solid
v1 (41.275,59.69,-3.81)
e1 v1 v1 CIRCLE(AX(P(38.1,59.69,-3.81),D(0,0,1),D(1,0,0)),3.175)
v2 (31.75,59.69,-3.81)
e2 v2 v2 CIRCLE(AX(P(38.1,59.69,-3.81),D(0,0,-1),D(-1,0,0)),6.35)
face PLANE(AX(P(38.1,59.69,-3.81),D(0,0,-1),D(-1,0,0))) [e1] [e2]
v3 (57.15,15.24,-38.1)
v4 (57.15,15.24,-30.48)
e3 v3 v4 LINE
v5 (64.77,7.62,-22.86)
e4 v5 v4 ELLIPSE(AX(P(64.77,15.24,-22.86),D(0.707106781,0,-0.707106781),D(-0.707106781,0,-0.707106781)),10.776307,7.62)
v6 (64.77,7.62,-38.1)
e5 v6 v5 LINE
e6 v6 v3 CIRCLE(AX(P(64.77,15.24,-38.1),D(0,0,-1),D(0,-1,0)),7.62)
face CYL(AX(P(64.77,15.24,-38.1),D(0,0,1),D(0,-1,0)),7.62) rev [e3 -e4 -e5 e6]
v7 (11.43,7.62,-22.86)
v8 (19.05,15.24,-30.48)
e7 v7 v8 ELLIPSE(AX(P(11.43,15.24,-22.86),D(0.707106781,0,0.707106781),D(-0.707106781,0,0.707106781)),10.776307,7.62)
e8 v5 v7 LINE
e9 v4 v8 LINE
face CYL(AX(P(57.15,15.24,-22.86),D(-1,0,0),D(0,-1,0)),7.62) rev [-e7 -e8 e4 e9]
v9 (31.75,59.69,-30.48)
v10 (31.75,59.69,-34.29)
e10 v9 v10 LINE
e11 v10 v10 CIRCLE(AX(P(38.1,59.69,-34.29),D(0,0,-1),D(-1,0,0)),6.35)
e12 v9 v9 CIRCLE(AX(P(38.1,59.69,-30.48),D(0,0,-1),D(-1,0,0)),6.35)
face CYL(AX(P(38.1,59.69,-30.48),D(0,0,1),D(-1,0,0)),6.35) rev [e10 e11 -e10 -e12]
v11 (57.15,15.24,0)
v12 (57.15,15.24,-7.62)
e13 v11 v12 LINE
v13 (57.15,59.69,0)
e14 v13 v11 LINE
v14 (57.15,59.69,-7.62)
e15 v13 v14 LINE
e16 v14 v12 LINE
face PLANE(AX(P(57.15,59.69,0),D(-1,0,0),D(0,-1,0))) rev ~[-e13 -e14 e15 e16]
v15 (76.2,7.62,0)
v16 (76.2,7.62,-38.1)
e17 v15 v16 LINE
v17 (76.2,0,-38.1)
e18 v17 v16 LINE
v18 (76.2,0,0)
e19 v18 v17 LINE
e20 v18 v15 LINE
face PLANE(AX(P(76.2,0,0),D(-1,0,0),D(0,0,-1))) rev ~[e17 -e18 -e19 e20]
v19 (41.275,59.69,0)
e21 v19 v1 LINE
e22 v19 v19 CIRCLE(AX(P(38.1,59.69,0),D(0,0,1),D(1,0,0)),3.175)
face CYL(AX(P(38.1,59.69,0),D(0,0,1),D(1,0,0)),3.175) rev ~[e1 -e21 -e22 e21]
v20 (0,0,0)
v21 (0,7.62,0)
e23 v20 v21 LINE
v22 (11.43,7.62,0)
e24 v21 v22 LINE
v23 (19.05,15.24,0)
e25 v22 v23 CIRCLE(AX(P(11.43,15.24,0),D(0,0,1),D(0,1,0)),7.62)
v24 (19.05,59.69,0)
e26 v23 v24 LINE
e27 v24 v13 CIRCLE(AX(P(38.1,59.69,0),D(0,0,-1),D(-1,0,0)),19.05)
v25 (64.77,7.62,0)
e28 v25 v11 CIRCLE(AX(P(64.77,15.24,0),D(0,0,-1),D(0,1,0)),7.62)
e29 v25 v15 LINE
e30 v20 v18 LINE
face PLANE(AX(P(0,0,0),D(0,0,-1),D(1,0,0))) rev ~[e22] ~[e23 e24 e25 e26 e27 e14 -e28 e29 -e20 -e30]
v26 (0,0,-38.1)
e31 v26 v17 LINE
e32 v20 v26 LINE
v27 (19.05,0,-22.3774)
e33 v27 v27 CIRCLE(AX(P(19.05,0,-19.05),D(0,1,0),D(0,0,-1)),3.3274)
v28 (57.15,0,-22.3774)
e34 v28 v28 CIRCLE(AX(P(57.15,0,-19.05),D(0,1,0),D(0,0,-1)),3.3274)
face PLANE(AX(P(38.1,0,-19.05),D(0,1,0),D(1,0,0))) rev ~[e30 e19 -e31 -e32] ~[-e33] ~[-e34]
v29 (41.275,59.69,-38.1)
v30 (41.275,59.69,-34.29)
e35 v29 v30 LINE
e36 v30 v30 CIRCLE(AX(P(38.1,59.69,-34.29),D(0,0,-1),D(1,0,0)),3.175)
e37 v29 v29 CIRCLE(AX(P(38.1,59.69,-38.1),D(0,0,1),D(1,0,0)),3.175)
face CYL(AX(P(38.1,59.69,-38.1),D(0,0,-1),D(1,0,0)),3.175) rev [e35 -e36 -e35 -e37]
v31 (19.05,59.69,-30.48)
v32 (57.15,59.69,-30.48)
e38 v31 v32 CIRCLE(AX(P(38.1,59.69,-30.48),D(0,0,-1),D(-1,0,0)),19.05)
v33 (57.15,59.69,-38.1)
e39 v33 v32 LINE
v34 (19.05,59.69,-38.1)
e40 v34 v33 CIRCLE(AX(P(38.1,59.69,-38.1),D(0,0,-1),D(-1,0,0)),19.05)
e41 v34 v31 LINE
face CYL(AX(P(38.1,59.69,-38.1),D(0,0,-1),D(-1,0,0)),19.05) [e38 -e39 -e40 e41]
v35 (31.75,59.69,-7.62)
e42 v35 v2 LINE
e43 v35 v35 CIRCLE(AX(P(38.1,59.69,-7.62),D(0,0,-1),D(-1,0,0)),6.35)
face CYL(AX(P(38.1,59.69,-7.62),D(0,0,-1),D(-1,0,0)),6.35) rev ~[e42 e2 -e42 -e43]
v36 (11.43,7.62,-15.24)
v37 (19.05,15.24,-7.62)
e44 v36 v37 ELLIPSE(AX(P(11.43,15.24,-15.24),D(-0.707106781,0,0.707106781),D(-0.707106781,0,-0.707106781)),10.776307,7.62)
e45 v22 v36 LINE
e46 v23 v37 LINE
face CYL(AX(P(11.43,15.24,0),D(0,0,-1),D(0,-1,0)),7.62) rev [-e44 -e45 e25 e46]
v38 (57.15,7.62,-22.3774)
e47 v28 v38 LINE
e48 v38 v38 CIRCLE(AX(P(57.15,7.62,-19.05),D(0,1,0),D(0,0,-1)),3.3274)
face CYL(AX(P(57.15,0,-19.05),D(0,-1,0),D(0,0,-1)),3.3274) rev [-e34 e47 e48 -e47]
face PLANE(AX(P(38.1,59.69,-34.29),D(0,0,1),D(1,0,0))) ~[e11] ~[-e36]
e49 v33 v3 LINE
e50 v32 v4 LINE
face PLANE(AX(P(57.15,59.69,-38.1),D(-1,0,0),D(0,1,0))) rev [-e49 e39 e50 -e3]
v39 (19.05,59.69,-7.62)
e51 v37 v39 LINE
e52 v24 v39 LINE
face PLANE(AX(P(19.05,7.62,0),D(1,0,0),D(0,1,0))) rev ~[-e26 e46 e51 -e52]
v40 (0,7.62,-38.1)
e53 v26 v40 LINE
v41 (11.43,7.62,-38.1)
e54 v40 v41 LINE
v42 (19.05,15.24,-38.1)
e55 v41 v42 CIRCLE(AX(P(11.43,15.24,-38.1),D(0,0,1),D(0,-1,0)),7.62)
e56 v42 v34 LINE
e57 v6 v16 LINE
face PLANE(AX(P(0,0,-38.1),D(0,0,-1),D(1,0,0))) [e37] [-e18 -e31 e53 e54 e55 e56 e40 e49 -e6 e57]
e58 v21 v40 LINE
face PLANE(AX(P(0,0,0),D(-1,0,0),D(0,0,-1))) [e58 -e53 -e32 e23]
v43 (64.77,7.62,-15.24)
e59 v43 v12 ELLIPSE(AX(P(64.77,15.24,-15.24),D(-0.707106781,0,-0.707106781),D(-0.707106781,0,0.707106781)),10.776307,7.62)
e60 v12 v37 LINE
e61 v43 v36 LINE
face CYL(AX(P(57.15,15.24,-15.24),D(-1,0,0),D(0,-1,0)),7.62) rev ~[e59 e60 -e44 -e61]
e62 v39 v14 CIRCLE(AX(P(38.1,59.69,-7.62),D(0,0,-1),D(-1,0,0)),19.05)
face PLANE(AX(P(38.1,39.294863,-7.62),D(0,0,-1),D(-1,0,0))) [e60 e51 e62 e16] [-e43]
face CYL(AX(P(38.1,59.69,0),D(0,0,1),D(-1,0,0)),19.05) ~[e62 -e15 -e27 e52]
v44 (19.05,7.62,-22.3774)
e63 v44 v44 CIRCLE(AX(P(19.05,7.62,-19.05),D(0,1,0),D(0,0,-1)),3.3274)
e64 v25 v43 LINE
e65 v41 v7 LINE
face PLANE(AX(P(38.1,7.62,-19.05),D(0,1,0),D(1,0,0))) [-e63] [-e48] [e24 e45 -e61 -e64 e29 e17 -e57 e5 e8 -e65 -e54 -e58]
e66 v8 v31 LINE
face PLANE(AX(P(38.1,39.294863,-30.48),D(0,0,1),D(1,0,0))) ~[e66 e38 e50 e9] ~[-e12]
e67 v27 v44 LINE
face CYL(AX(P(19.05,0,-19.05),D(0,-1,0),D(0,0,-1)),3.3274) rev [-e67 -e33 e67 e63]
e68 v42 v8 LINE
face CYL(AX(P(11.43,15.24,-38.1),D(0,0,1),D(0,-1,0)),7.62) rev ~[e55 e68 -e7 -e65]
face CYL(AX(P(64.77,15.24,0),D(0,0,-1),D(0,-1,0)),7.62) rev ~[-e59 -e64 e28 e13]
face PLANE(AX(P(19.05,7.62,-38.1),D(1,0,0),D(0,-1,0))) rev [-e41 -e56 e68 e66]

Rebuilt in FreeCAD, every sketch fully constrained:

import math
import FreeCAD as App
import Part
import Sketcher

V = App.Vector
Q = App.Units.Quantity


def edges_at(feature, points):
    """Names of the edges that pass closest to the given points."""
    edges = feature.Shape.Edges
    near = lambda p: min(range(len(edges)), key=lambda i: edges[i].distToShape(Part.Vertex(*p))[0])
    return sorted({f"Edge{near(p) + 1}" for p in points})


def add_polygon(sketch, points):
    """Adds a closed chain of lines whose ends are joined by coincident constraints."""
    first, n = sketch.GeometryCount, len(points)
    for a, b in zip(points, points[1:] + points[:1]):
        sketch.addGeometry(Part.LineSegment(App.Vector(*a, 0), App.Vector(*b, 0)), False)
    for i in range(n):
        sketch.addConstraint(Sketcher.Constraint("Coincident", first + i, 2, first + (i + 1) % n, 1))

doc = App.newDocument("Part")
body = doc.addObject("PartDesign::Body", "Body")

# Sketch on XZ plane
sketch1 = body.newObject("Sketcher::SketchObject", "Sketch")
sketch1.AttachmentSupport = (doc.getObject("XZ_Plane"), [""])
sketch1.MapMode = "FlatFace"
add_polygon(sketch1, [(0, -38.1), (0, 0), (76.2, 0), (76.2, -38.1)])  # lines 0-3
sketch1.addGeometry(Part.Circle(V(19.1, -19.1, 0), V(0, 0, 1), 3.3), False)  # 4
sketch1.addGeometry(Part.Circle(V(57.1, -19.1, 0), V(0, 0, 1), 3.3), False)  # 5
sketch1.addConstraint([
    Sketcher.Constraint("Vertical", 0),
    Sketcher.Constraint("Horizontal", 1),
    Sketcher.Constraint("Vertical", 2),
    Sketcher.Constraint("Horizontal", 3),
    Sketcher.Constraint("Coincident", 0, 2, -1, 1),
    Sketcher.Constraint("Equal", 4, 5),
    Sketcher.Constraint("Horizontal", 4, 3, 5, 3),
    Sketcher.Constraint("DistanceX", 1, 1, 1, 2, Q("3 in")),
    Sketcher.Constraint("Diameter", 4, Q("0.262 in")),
    Sketcher.Constraint("DistanceY", 0, 1, 0, 2, Q("1.5 in")),
    Sketcher.Constraint("DistanceX", 4, 3, 5, 3, Q("1.5 in")),
    Sketcher.Constraint("DistanceX", -1, 1, 4, 3, Q("0.75 in")),
    Sketcher.Constraint("DistanceY", 4, 3, -1, 1, Q("0.75 in")),
])
pad1 = body.newObject("PartDesign::Pad", "Pad")
pad1.Profile = sketch1
pad1.Length = Q("0.3 in")
pad1.Reversed = True

# Sketch on XY plane
sketch2 = body.newObject("Sketcher::SketchObject", "Sketch001")
sketch2.AttachmentSupport = (doc.getObject("XY_Plane"), [""])
sketch2.MapMode = "FlatFace"
sketch2.addGeometry([
    Part.LineSegment(V(19.1, 59.7, 0), V(19.1, 7.6, 0)),  # 0
    Part.LineSegment(V(19.1, 7.6, 0), V(57.1, 7.6, 0)),  # 1
    Part.LineSegment(V(57.1, 7.6, 0), V(57.1, 59.7, 0)),  # 2
    Part.ArcOfCircle(Part.Circle(V(38.1, 59.7, 0), V(0, 0, 1), 19.1), math.radians(0), math.radians(180)),  # 3
    Part.Circle(V(38.1, 59.7, 0), V(0, 0, 1), 3.2),  # 4
], False)
sketch2.addConstraint([
    Sketcher.Constraint("Coincident", 0, 2, 1, 1),
    Sketcher.Constraint("Coincident", 1, 2, 2, 1),
    Sketcher.Constraint("Tangent", 2, 2, 3, 1),
    Sketcher.Constraint("Tangent", 3, 2, 0, 1),
    Sketcher.Constraint("Vertical", 0),
    Sketcher.Constraint("Horizontal", 1),
    Sketcher.Constraint("Vertical", 2),
    Sketcher.Constraint("Coincident", 4, 3, 3, 3),
    Sketcher.Constraint("Diameter", 4, Q("0.25 in")),
    Sketcher.Constraint("Radius", 3, Q("0.75 in")),
    Sketcher.Constraint("DistanceY", 0, 2, 0, 1, Q("2.05 in")),
    Sketcher.Constraint("DistanceX", -1, 1, 3, 3, Q("1.5 in")),
    Sketcher.Constraint("DistanceY", -1, 1, 0, 2, Q("0.3 in")),
])
pad2 = body.newObject("PartDesign::Pad", "Pad001")
pad2.Profile = sketch2
pad2.Length = Q("0.3 in")
pad2.Reversed = True
doc.recompute()

fillet = body.newObject("PartDesign::Fillet", "Fillet")
fillet.Base = (pad2, edges_at(pad2, [(38.1, 7.62, -7.62), (57.15, 7.62, -3.81), (19.05, 7.62, -3.81)]))
fillet.Radius = Q("0.3 in")

# Sketch on XY plane
sketch3 = body.newObject("Sketcher::SketchObject", "Sketch002")
sketch3.AttachmentSupport = (doc.getObject("XY_Plane"), [""])
sketch3.MapMode = "FlatFace"
sketch3.AttachmentOffset = App.Placement(V(0, 0, -0.3 * 25.4), App.Rotation())
sketch3.addGeometry(Part.Circle(V(38, 60, 0), V(0, 0, 1), 6), False)
sketch3.addConstraint([
    Sketcher.Constraint("Diameter", 0, Q("0.5 in")),
    Sketcher.Constraint("DistanceX", -1, 1, 0, 3, Q("1.5 in")),
    Sketcher.Constraint("DistanceY", -1, 1, 0, 3, Q("2.35 in")),
])
pocket1 = body.newObject("PartDesign::Pocket", "Pocket")
pocket1.Profile = sketch3
pocket1.Length = Q("0.15 in")
pocket1.Reversed = True
doc.recompute()

datumplane = body.newObject("PartDesign::Plane", "DatumPlane")
datumplane.AttachmentSupport = (doc.getObject("XY_Plane"), [""])
datumplane.MapMode = "FlatFace"
datumplane.AttachmentOffset = App.Placement(V(0, 0, -0.75 * 25.4), App.Rotation())
mirrored = body.newObject("PartDesign::Mirrored", "Mirrored")
mirrored.Originals = [pad2, pocket1]
mirrored.MirrorPlane = (datumplane, [""])
body.Tip = mirrored
doc.recompute()

fillet2 = body.newObject("PartDesign::Fillet", "Fillet001")
fillet2.Base = (mirrored, edges_at(mirrored, [(38.1, 7.62, -30.48), (57.15, 7.62, -34.29), (19.05, 7.62, -34.29)]))
fillet2.Radius = Q("0.3 in")

doc.recompute()
